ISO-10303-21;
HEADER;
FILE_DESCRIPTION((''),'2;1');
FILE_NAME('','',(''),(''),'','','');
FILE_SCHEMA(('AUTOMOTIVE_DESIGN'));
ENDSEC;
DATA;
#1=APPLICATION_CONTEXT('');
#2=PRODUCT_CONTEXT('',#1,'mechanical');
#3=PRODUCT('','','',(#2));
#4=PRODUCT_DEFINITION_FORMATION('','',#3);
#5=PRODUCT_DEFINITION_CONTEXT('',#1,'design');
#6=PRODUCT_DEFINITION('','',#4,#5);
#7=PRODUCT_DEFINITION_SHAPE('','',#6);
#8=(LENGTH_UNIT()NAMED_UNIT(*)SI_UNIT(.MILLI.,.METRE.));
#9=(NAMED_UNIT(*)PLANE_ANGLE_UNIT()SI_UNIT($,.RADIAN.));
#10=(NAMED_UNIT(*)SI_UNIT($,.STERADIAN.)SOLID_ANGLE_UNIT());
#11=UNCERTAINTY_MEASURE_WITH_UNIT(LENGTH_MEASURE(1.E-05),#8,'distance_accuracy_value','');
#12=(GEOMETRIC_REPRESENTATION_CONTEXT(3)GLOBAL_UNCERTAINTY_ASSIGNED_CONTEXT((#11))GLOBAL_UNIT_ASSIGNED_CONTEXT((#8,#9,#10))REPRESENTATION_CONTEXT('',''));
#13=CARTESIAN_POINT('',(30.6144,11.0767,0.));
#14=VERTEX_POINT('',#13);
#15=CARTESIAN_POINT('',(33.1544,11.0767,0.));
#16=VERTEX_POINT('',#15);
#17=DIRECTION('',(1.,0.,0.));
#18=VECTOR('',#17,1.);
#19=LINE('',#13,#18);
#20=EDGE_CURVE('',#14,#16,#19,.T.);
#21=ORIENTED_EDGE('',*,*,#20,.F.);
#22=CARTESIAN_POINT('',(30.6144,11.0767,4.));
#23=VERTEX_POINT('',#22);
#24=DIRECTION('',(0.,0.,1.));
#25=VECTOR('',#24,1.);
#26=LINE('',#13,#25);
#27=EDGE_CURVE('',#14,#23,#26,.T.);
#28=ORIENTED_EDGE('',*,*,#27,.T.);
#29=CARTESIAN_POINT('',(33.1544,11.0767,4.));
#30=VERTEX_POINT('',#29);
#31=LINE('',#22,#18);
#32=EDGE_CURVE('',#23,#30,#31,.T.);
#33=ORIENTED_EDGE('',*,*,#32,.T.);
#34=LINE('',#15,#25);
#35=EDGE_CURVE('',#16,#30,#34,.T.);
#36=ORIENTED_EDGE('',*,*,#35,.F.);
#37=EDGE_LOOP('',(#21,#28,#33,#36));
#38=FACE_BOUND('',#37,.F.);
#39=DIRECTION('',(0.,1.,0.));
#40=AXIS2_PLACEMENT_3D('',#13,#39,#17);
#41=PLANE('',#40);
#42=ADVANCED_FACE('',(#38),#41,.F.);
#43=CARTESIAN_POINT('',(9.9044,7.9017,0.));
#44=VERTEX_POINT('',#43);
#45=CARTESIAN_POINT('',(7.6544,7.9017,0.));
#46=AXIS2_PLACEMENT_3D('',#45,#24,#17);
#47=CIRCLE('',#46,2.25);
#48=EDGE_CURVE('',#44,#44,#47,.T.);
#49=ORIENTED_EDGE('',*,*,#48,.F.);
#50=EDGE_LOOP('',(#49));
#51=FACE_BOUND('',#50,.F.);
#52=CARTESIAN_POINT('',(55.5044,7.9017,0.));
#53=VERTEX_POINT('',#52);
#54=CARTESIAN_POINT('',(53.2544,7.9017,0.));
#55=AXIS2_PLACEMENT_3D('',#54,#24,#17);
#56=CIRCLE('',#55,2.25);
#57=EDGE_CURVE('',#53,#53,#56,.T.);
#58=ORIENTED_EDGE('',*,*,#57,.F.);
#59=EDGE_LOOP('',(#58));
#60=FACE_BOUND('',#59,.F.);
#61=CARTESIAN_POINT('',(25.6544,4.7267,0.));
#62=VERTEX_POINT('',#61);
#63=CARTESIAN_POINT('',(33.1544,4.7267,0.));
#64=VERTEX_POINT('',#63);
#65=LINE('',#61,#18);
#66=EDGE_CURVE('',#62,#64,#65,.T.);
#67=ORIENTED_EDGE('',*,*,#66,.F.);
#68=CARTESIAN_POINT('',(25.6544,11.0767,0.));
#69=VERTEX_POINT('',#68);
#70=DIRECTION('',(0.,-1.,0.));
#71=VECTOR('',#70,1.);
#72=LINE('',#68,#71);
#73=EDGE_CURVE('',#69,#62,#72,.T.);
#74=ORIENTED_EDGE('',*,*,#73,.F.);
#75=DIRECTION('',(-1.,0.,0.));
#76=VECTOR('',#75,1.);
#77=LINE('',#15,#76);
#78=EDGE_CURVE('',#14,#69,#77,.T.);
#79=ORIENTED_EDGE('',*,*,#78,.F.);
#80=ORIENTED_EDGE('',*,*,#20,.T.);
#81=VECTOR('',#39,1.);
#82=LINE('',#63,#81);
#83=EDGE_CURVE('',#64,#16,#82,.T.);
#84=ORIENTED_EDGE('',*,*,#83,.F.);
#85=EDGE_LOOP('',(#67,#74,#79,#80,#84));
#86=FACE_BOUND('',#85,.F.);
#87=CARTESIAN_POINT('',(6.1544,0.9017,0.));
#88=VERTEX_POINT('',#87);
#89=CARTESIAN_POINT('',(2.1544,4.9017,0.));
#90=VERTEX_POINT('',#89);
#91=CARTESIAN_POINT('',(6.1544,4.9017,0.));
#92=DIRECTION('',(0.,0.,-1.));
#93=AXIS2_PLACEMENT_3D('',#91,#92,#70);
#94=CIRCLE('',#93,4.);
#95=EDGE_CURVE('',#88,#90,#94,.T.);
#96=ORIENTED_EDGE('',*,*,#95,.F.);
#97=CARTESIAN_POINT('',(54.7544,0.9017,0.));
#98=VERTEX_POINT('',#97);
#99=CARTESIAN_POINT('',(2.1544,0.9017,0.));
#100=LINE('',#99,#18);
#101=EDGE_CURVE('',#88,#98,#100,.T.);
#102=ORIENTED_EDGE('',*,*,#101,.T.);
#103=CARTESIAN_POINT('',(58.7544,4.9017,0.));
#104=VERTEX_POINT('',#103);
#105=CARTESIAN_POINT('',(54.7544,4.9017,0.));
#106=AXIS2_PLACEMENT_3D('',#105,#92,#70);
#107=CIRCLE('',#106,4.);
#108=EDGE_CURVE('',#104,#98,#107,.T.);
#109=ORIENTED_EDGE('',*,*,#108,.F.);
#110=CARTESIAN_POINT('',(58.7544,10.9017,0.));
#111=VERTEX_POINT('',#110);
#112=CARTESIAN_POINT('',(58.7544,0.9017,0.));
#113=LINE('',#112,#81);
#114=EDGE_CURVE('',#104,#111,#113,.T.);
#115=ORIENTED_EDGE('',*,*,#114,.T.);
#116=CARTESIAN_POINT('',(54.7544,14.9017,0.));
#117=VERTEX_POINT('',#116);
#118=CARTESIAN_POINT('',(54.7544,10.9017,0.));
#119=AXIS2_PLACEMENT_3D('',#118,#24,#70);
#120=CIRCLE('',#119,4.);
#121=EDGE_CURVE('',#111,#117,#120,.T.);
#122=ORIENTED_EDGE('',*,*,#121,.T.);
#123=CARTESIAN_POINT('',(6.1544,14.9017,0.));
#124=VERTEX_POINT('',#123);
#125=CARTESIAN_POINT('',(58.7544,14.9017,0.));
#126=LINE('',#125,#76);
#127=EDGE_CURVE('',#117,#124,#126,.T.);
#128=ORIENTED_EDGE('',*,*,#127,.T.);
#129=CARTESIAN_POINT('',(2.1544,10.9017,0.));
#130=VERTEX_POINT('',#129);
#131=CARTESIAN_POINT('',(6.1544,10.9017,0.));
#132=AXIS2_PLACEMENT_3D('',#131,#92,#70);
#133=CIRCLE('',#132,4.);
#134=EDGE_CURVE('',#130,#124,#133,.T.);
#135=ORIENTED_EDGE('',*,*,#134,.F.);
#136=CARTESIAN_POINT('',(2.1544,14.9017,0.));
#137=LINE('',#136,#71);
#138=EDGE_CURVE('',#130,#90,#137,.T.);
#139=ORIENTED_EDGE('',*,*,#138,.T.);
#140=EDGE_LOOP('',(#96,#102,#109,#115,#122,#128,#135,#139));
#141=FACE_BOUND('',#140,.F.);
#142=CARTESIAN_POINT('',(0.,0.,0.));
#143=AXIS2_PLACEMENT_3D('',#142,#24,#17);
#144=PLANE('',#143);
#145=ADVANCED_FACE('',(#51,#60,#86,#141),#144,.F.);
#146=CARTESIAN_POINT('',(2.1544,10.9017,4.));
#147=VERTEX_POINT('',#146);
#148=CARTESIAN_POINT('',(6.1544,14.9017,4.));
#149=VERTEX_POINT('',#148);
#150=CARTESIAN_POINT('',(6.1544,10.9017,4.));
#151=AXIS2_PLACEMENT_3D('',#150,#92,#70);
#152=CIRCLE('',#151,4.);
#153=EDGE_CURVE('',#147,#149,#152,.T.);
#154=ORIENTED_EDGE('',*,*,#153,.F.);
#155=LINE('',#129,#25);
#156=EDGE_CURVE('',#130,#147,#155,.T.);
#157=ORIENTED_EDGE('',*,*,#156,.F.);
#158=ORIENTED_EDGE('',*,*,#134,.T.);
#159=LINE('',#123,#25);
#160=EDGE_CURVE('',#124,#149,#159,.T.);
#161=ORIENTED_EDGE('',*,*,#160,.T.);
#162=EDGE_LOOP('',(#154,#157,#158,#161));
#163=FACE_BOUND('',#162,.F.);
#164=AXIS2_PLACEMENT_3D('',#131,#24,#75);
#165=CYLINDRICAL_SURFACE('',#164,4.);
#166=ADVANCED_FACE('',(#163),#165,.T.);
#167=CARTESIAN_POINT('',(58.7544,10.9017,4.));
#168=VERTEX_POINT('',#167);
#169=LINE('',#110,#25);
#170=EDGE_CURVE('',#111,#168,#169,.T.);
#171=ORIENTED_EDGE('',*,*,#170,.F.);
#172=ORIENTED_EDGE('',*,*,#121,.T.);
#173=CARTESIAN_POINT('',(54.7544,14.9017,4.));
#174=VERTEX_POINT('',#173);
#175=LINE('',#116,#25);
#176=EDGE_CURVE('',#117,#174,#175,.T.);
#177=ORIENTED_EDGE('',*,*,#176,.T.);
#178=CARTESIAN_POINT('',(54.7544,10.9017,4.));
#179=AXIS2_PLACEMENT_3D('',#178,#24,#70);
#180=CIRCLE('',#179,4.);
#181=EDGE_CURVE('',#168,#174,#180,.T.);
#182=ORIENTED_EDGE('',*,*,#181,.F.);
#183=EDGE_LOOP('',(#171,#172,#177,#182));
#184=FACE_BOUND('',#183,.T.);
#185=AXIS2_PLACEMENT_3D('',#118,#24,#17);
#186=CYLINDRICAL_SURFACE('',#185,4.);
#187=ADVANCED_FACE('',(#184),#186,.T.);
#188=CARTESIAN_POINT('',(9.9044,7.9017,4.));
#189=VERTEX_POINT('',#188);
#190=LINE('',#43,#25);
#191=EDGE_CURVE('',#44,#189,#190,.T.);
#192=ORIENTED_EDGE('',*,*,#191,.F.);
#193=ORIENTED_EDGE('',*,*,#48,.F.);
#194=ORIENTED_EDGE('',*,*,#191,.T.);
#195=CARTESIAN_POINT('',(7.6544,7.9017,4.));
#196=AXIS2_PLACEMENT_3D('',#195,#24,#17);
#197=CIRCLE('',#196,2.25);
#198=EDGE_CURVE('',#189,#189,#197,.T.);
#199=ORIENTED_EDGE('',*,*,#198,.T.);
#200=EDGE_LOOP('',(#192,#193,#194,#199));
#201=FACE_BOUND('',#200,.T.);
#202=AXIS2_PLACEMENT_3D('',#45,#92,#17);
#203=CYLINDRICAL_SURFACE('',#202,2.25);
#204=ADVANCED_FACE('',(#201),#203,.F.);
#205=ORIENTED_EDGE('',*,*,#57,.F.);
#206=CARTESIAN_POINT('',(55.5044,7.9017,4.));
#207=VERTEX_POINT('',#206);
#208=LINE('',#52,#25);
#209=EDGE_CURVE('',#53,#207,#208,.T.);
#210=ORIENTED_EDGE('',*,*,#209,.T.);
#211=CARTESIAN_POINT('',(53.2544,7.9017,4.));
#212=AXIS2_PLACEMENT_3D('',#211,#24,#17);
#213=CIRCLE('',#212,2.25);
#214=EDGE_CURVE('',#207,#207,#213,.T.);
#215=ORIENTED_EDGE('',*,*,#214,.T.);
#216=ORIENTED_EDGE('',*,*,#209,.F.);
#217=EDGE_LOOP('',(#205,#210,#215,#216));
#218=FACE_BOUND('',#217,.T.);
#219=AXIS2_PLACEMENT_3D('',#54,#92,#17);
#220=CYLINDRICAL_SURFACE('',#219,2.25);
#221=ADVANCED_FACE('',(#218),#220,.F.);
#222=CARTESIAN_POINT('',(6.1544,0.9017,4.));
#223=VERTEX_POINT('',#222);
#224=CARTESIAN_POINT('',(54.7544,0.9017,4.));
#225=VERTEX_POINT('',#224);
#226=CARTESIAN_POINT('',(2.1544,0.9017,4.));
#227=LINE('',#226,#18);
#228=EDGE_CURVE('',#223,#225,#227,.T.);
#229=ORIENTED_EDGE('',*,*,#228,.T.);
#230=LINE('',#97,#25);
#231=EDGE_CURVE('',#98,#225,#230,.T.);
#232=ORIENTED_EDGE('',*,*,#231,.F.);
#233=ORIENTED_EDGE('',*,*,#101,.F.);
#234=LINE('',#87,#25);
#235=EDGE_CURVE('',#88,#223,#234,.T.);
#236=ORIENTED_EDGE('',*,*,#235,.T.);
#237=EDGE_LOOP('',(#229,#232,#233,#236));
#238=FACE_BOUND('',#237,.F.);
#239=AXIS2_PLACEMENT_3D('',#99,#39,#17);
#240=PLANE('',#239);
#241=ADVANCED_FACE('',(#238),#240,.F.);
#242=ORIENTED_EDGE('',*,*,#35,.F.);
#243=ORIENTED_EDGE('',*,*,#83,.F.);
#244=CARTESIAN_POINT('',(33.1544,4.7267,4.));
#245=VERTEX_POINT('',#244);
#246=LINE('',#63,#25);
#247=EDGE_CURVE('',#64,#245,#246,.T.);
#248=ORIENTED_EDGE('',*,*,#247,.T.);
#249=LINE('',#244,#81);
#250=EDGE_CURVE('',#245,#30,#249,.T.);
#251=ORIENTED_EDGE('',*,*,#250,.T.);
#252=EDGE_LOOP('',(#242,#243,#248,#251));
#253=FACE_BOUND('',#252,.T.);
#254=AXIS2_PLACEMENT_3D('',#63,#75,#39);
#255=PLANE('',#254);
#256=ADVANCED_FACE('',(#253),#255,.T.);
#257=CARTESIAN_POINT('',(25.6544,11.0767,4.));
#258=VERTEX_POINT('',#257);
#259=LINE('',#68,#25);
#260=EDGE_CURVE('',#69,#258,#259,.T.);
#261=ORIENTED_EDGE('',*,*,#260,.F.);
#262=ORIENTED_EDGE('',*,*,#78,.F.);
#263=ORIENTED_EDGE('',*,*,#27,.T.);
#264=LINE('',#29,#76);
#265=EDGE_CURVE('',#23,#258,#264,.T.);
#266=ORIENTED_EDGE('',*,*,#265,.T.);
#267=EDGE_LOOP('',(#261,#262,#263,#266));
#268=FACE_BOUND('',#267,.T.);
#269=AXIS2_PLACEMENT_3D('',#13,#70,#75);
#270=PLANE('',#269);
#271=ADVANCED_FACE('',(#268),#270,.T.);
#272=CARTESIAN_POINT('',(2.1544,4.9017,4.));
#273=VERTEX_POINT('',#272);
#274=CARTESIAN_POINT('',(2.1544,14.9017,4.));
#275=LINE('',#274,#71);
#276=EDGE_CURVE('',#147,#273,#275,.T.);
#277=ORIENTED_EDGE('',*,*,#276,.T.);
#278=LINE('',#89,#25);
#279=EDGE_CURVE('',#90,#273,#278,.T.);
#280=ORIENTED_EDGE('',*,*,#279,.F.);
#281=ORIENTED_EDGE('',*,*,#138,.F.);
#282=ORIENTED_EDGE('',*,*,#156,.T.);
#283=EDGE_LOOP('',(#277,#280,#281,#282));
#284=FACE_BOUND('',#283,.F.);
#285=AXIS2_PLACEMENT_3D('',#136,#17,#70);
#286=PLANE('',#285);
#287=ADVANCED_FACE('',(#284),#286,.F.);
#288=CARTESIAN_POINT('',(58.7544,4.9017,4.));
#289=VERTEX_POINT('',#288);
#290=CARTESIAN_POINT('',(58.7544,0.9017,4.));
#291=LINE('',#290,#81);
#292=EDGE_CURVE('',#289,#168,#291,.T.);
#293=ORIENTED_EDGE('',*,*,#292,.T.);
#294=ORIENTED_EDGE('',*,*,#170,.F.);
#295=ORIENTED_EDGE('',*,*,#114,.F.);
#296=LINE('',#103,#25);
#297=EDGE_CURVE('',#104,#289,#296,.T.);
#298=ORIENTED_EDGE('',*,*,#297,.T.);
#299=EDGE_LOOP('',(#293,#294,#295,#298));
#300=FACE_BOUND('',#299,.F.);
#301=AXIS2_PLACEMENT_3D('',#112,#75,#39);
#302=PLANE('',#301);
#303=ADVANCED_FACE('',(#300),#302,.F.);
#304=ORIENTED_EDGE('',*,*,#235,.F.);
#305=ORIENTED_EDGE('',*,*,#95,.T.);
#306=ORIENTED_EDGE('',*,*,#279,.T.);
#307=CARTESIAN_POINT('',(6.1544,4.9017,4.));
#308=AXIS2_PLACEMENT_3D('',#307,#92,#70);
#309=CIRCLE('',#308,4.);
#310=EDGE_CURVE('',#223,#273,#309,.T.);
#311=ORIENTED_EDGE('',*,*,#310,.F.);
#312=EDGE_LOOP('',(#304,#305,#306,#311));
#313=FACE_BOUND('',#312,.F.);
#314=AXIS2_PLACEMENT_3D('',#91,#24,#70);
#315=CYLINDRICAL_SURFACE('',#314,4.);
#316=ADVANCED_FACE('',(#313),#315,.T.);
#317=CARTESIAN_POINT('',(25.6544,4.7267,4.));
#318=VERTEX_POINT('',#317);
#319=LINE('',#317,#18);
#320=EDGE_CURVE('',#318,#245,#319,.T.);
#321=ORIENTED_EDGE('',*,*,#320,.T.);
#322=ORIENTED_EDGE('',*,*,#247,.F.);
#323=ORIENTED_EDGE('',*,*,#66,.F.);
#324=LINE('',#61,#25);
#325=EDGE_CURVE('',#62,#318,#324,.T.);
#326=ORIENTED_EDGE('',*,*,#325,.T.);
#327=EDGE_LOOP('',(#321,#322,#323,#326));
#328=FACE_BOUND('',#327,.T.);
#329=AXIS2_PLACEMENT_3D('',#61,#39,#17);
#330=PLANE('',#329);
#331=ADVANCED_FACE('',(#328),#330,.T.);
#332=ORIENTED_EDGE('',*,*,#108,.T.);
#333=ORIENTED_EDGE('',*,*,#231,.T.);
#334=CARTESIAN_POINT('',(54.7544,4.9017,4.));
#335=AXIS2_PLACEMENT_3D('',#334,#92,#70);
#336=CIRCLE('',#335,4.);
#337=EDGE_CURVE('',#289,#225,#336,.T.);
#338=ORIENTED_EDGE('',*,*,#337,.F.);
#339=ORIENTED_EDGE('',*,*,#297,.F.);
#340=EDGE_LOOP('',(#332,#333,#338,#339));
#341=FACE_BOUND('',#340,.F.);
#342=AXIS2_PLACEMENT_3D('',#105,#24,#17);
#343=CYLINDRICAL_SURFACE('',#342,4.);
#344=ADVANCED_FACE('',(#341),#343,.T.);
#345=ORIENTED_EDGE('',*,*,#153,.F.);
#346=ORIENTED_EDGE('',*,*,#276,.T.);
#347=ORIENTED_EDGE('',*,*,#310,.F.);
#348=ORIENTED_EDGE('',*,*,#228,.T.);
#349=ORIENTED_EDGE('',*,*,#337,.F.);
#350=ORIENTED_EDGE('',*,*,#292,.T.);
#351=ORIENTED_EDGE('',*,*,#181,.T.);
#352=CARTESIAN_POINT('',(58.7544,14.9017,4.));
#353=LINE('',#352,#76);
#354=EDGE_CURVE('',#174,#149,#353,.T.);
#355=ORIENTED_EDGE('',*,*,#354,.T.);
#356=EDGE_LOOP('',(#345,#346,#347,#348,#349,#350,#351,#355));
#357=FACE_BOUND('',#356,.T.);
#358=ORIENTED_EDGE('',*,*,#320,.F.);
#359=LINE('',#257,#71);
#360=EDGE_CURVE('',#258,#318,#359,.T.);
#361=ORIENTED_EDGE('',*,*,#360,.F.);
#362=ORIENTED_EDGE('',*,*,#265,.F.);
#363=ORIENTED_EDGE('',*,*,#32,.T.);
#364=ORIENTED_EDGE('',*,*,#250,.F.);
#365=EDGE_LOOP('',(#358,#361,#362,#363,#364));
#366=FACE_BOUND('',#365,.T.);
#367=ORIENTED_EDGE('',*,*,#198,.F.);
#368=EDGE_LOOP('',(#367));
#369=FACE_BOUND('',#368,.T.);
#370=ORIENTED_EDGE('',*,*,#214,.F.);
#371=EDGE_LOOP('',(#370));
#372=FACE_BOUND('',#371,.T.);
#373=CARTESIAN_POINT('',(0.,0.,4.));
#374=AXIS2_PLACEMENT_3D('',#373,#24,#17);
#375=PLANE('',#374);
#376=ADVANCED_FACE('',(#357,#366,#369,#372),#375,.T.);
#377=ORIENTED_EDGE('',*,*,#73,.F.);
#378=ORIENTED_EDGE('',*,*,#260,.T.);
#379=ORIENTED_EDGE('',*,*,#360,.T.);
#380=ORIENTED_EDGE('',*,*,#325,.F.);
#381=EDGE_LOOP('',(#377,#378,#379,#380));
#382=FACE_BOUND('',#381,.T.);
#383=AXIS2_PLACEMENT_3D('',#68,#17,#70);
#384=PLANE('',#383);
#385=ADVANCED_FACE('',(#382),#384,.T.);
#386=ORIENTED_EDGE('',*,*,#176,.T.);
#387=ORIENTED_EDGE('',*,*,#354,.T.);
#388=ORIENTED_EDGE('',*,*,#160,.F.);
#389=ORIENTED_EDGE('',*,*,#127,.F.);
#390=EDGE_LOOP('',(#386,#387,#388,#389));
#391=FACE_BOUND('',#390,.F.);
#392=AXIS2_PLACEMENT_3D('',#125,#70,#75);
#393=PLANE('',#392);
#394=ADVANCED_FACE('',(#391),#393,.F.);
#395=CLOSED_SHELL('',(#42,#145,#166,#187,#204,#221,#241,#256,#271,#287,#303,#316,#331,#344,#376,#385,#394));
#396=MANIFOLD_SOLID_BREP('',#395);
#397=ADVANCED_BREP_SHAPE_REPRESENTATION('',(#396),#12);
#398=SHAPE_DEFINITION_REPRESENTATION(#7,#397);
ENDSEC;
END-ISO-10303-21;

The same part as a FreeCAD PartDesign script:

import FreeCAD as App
import Part
import Sketcher
from FreeCAD import Vector
Q = App.Units.Quantity


def edges_at(feature, points):
    """Names of the edges that pass closest to the given points."""
    edges = feature.Shape.Edges
    near = lambda p: min(range(len(edges)), key=lambda i: edges[i].distToShape(Part.Vertex(*p))[0])
    return sorted({f"Edge{near(p) + 1}" for p in points})

doc = App.newDocument("Part")
body = doc.addObject("PartDesign::Body", "Body")

# Sketch on XY plane
sketch1 = doc.addObject("Sketcher::SketchObject", "Sketch")
body.addObject(sketch1)
sketch1.AttachmentSupport = (doc.XY_Plane, [""])
sketch1.MapMode = "FlatFace"
sketch1.addGeometry([
    Part.LineSegment(Vector(58.8, 0.9, 0), Vector(58.8, 14.9, 0)),  # 0
    Part.LineSegment(Vector(58.8, 14.9, 0), Vector(2.2, 14.9, 0)),  # 1
    Part.LineSegment(Vector(2.2, 14.9, 0), Vector(2.2, 0.9, 0)),  # 2
    Part.LineSegment(Vector(2.2, 0.9, 0), Vector(58.8, 0.9, 0)),  # 3
    Part.Circle(Vector(7.7, 7.9, 0), Vector(0, 0, 1), 2.2),  # 4
    Part.LineSegment(Vector(25.7, 11.1, 0), Vector(33.2, 11.1, 0)),  # 5
    Part.LineSegment(Vector(33.2, 11.1, 0), Vector(33.2, 4.7, 0)),  # 6
    Part.LineSegment(Vector(33.2, 4.7, 0), Vector(25.7, 4.7, 0)),  # 7
    Part.LineSegment(Vector(25.7, 4.7, 0), Vector(25.7, 11.1, 0)),  # 8
    Part.Circle(Vector(53.3, 7.9, 0), Vector(0, 0, 1), 2.2),  # 9
], False)
sketch1.addConstraint([
    Sketcher.Constraint("Coincident", 0, 2, 1, 1),
    Sketcher.Constraint("Coincident", 1, 2, 2, 1),
    Sketcher.Constraint("Coincident", 2, 2, 3, 1),
    Sketcher.Constraint("Coincident", 3, 2, 0, 1),
    Sketcher.Constraint("Coincident", 5, 2, 6, 1),
    Sketcher.Constraint("Coincident", 6, 2, 7, 1),
    Sketcher.Constraint("Coincident", 7, 2, 8, 1),
    Sketcher.Constraint("Coincident", 8, 2, 5, 1),
    Sketcher.Constraint("Vertical", 0),
    Sketcher.Constraint("Horizontal", 1),
    Sketcher.Constraint("Vertical", 2),
    Sketcher.Constraint("Horizontal", 3),
    Sketcher.Constraint("Horizontal", 5),
    Sketcher.Constraint("Vertical", 6),
    Sketcher.Constraint("Horizontal", 7),
    Sketcher.Constraint("Vertical", 8),
    Sketcher.Constraint("Equal", 4, 9),
    Sketcher.Constraint("Horizontal", 4, 3, 9, 3),
    Sketcher.Constraint("DistanceX", 5, 1, 5, 2, Q("7.5 mm")),
    Sketcher.Constraint("Diameter", 4, Q("4.5 mm")),
    Sketcher.Constraint("DistanceY", 6, 2, 6, 1, Q("6.35 mm")),
    Sketcher.Constraint("DistanceY", 0, 1, 0, 2, Q("14 mm")),
    Sketcher.Constraint("DistanceX", 1, 2, 1, 1, Q("56.6 mm")),
    Sketcher.Constraint("DistanceY", 9, 3, 0, 2, Q("7 mm")),
    Sketcher.Constraint("DistanceX", 1, 2, 5, 2, Q("31 mm")),
    Sketcher.Constraint("DistanceX", 4, 3, 7, 2, Q("18 mm")),
    Sketcher.Constraint("DistanceX", 4, 3, 9, 3, Q("45.6 mm")),
    Sketcher.Constraint("DistanceY", 9, 3, 5, 2, Q("3.175 mm")),
    Sketcher.Constraint("DistanceX", -1, 1, 4, 3, Q("7.6544 mm")),
    Sketcher.Constraint("DistanceY", -1, 1, 4, 3, Q("7.9017 mm")),
])
pad1 = doc.addObject("PartDesign::Pad", "Pad")
body.addObject(pad1)
pad1.Profile = sketch1
pad1.Length = 4
doc.recompute()

fillet = doc.addObject("PartDesign::Fillet", "Fillet")
body.addObject(fillet)
fillet.Base = (pad1, edges_at(pad1, [
    (58.754, 0.902, 2),
    (58.754, 14.902, 2),
    (2.154, 14.902, 2),
    (2.154, 0.902, 2),
]))
fillet.Radius = 4

doc.recompute()
